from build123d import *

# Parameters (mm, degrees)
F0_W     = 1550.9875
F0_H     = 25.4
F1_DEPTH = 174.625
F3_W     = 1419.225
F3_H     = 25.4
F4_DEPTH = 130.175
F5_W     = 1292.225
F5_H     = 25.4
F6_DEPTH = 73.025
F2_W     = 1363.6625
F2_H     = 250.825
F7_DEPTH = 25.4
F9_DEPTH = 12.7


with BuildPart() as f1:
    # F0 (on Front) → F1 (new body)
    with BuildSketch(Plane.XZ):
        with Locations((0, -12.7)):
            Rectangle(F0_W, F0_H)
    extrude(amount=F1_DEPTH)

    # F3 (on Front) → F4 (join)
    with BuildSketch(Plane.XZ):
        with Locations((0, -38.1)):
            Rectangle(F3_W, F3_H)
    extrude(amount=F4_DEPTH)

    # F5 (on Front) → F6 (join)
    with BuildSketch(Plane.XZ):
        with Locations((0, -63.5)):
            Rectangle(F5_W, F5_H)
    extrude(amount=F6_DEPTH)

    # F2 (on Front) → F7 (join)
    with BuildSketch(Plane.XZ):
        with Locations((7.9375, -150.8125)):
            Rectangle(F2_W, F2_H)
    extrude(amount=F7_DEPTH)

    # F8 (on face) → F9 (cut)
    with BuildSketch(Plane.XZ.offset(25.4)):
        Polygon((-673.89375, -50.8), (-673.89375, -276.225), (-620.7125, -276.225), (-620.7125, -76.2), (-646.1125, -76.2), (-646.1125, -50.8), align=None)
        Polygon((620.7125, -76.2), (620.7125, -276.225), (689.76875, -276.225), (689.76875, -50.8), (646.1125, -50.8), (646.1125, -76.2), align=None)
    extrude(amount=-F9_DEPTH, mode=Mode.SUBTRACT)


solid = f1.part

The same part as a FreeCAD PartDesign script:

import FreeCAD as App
import Part
import Sketcher
from FreeCAD import Vector
Q = App.Units.Quantity

doc = App.newDocument("Part")
params = doc.addObject("Spreadsheet::Sheet", "Params")
for row, (alias, value) in enumerate([
    ("sketch1_height", "1 in"),
    ("sketch1_width", "61.0625 in"),
    ("pad1_length", "6.875 in"),
    ("sketch2_height", "1 in"),
    ("sketch2_width", "55.875 in"),
    ("pad2_length", "5.125 in"),
    ("sketch3_height", "1 in"),
    ("sketch3_width", "50.875 in"),
    ("pad3_length", "2.875 in"),
    ("sketch4_width", "53.6875 in"),
    ("sketch4_height", "9.875 in"),
    ("pad4_length", "1 in"),
    ("sketch5_width", "1 in"),
    ("sketch5_width2", "2.09375 in"),
    ("sketch5_width3", "2.71875 in"),
    ("sketch5_height", "8.875 in"),
    ("pocket1_length", "0.5 in"),
], start=1):
    params.set(f"A{row}", alias)
    params.set(f"B{row}", "=" + value)
    params.setAlias(f"B{row}", alias)

body = doc.addObject("PartDesign::Body", "Body")

sketch1 = doc.addObject("Sketcher::SketchObject", "Sketch")
body.addObject(sketch1)
sketch1.AttachmentSupport = (doc.XZ_Plane, [""])
sketch1.MapMode = "FlatFace"
sketch1.addGeometry(Part.LineSegment(Vector(-775.49375, 0, 0), Vector(-775.49375, -25.4, 0)), False)
sketch1.addGeometry(Part.LineSegment(Vector(-775.49375, -25.4, 0), Vector(775.49375, -25.4, 0)), False)
sketch1.addGeometry(Part.LineSegment(Vector(775.49375, -25.4, 0), Vector(775.49375, 0, 0)), False)
sketch1.addGeometry(Part.LineSegment(Vector(775.49375, 0, 0), Vector(-775.49375, 0, 0)), False)
sketch1.addConstraint(Sketcher.Constraint("Coincident", 0, 2, 1, 1))
sketch1.addConstraint(Sketcher.Constraint("Coincident", 1, 2, 2, 1))
sketch1.addConstraint(Sketcher.Constraint("Coincident", 2, 2, 3, 1))
sketch1.addConstraint(Sketcher.Constraint("Coincident", 3, 2, 0, 1))
sketch1.addConstraint(Sketcher.Constraint("Vertical", 0))
sketch1.addConstraint(Sketcher.Constraint("Horizontal", 1))
sketch1.addConstraint(Sketcher.Constraint("Vertical", 2))
sketch1.addConstraint(Sketcher.Constraint("Horizontal", 3))
sketch1.addConstraint(Sketcher.Constraint("Symmetric", 2, 2, 3, 2, -1, 1))
sketch1.addConstraint(Sketcher.Constraint("DistanceY", 0, 2, 0, 1, Q("1 in")))
sketch1.addConstraint(Sketcher.Constraint("DistanceX", 1, 1, 1, 2, Q("61.0625 in")))
sketch1.setExpression("Constraints[9]", "Params.sketch1_height")
sketch1.setExpression("Constraints[10]", "Params.sketch1_width")
pad1 = doc.addObject("PartDesign::Pad", "Pad")
body.addObject(pad1)
pad1.Profile = sketch1
pad1.setExpression("Length", "Params.pad1_length")

sketch2 = doc.addObject("Sketcher::SketchObject", "Sketch001")
body.addObject(sketch2)
sketch2.AttachmentSupport = (doc.XZ_Plane, [""])
sketch2.MapMode = "FlatFace"
sketch2.addGeometry(Part.LineSegment(Vector(-709.6125, -25.4, 0), Vector(-709.6125, -50.8, 0)), False)
sketch2.addGeometry(Part.LineSegment(Vector(-709.6125, -50.8, 0), Vector(709.6125, -50.8, 0)), False)
sketch2.addGeometry(Part.LineSegment(Vector(709.6125, -50.8, 0), Vector(709.6125, -25.4, 0)), False)
sketch2.addGeometry(Part.LineSegment(Vector(709.6125, -25.4, 0), Vector(-709.6125, -25.4, 0)), False)
sketch2.addConstraint(Sketcher.Constraint("Coincident", 0, 2, 1, 1))
sketch2.addConstraint(Sketcher.Constraint("Coincident", 1, 2, 2, 1))
sketch2.addConstraint(Sketcher.Constraint("Coincident", 2, 2, 3, 1))
sketch2.addConstraint(Sketcher.Constraint("Coincident", 3, 2, 0, 1))
sketch2.addConstraint(Sketcher.Constraint("Vertical", 0))
sketch2.addConstraint(Sketcher.Constraint("Horizontal", 1))
sketch2.addConstraint(Sketcher.Constraint("Vertical", 2))
sketch2.addConstraint(Sketcher.Constraint("Horizontal", 3))
sketch2.addConstraint(Sketcher.Constraint("DistanceY", 0, 2, 0, 1, Q("1 in")))
sketch2.addConstraint(Sketcher.Constraint("DistanceY", 0, 2, -1, 1, Q("2 in")))
sketch2.addConstraint(Sketcher.Constraint("DistanceX", 1, 1, 1, 2, Q("55.875 in")))
sketch2.addConstraint(Sketcher.Constraint("DistanceX", 0, 2, -1, 1, Q("27.9375 in")))
sketch2.setExpression("Constraints[8]", "Params.sketch2_height")
sketch2.setExpression("Constraints[10]", "Params.sketch2_width")
pad2 = doc.addObject("PartDesign::Pad", "Pad001")
body.addObject(pad2)
pad2.Profile = sketch2
pad2.setExpression("Length", "Params.pad2_length")

sketch3 = doc.addObject("Sketcher::SketchObject", "Sketch002")
body.addObject(sketch3)
sketch3.AttachmentSupport = (doc.XZ_Plane, [""])
sketch3.MapMode = "FlatFace"
sketch3.addGeometry(Part.LineSegment(Vector(-646.1125, -50.8, 0), Vector(-646.1125, -76.2, 0)), False)
sketch3.addGeometry(Part.LineSegment(Vector(-646.1125, -76.2, 0), Vector(646.1125, -76.2, 0)), False)
sketch3.addGeometry(Part.LineSegment(Vector(646.1125, -76.2, 0), Vector(646.1125, -50.8, 0)), False)
sketch3.addGeometry(Part.LineSegment(Vector(646.1125, -50.8, 0), Vector(-646.1125, -50.8, 0)), False)
sketch3.addConstraint(Sketcher.Constraint("Coincident", 0, 2, 1, 1))
sketch3.addConstraint(Sketcher.Constraint("Coincident", 1, 2, 2, 1))
sketch3.addConstraint(Sketcher.Constraint("Coincident", 2, 2, 3, 1))
sketch3.addConstraint(Sketcher.Constraint("Coincident", 3, 2, 0, 1))
sketch3.addConstraint(Sketcher.Constraint("Vertical", 0))
sketch3.addConstraint(Sketcher.Constraint("Horizontal", 1))
sketch3.addConstraint(Sketcher.Constraint("Vertical", 2))
sketch3.addConstraint(Sketcher.Constraint("Horizontal", 3))
sketch3.addConstraint(Sketcher.Constraint("DistanceY", 0, 2, 0, 1, Q("1 in")))
sketch3.addConstraint(Sketcher.Constraint("DistanceY", 0, 2, -1, 1, Q("3 in")))
sketch3.addConstraint(Sketcher.Constraint("DistanceX", 1, 1, 1, 2, Q("50.875 in")))
sketch3.addConstraint(Sketcher.Constraint("DistanceX", 0, 2, -1, 1, Q("25.4375 in")))
sketch3.setExpression("Constraints[8]", "Params.sketch3_height")
sketch3.setExpression("Constraints[10]", "Params.sketch3_width")
pad3 = doc.addObject("PartDesign::Pad", "Pad002")
body.addObject(pad3)
pad3.Profile = sketch3
pad3.setExpression("Length", "Params.pad3_length")

sketch4 = doc.addObject("Sketcher::SketchObject", "Sketch003")
body.addObject(sketch4)
sketch4.AttachmentSupport = (doc.XZ_Plane, [""])
sketch4.MapMode = "FlatFace"
sketch4.addGeometry(Part.LineSegment(Vector(-673.89375, -25.4, 0), Vector(-673.89375, -276.225, 0)), False)
sketch4.addGeometry(Part.LineSegment(Vector(-673.89375, -276.225, 0), Vector(689.76875, -276.225, 0)), False)
sketch4.addGeometry(Part.LineSegment(Vector(689.76875, -276.225, 0), Vector(689.76875, -25.4, 0)), False)
sketch4.addGeometry(Part.LineSegment(Vector(689.76875, -25.4, 0), Vector(-673.89375, -25.4, 0)), False)
sketch4.addConstraint(Sketcher.Constraint("Coincident", 0, 2, 1, 1))
sketch4.addConstraint(Sketcher.Constraint("Coincident", 1, 2, 2, 1))
sketch4.addConstraint(Sketcher.Constraint("Coincident", 2, 2, 3, 1))
sketch4.addConstraint(Sketcher.Constraint("Coincident", 3, 2, 0, 1))
sketch4.addConstraint(Sketcher.Constraint("Vertical", 0))
sketch4.addConstraint(Sketcher.Constraint("Horizontal", 1))
sketch4.addConstraint(Sketcher.Constraint("Vertical", 2))
sketch4.addConstraint(Sketcher.Constraint("Horizontal", 3))
sketch4.addConstraint(Sketcher.Constraint("DistanceY", 2, 2, -1, 1, Q("1 in")))
sketch4.addConstraint(Sketcher.Constraint("DistanceX", 1, 1, 1, 2, Q("53.6875 in")))
sketch4.addConstraint(Sketcher.Constraint("DistanceY", 0, 2, 0, 1, Q("9.875 in")))
sketch4.addConstraint(Sketcher.Constraint("DistanceX", 0, 2, -1, 1, Q("26.53125 in")))
sketch4.setExpression("Constraints[9]", "Params.sketch4_width")
sketch4.setExpression("Constraints[10]", "Params.sketch4_height")
pad4 = doc.addObject("PartDesign::Pad", "Pad003")
body.addObject(pad4)
pad4.Profile = sketch4
pad4.setExpression("Length", "Params.pad4_length")

sketch5 = doc.addObject("Sketcher::SketchObject", "Sketch004")
body.addObject(sketch5)
sketch5.AttachmentSupport = (doc.XZ_Plane, [""])
sketch5.MapMode = "FlatFace"
sketch5.AttachmentOffset = App.Placement(Vector(0, 0, 1 * 25.4), App.Rotation())
sketch5.addGeometry(Part.LineSegment(Vector(-673.89375, -50.8, 0), Vector(-673.89375, -276.225, 0)), False)
sketch5.addGeometry(Part.LineSegment(Vector(-673.89375, -276.225, 0), Vector(-620.7125, -276.225, 0)), False)
sketch5.addGeometry(Part.LineSegment(Vector(-620.7125, -276.225, 0), Vector(-620.7125, -76.2, 0)), False)
sketch5.addGeometry(Part.LineSegment(Vector(-620.7125, -76.2, 0), Vector(-646.1125, -76.2, 0)), False)
sketch5.addGeometry(Part.LineSegment(Vector(-646.1125, -76.2, 0), Vector(-646.1125, -50.8, 0)), False)
sketch5.addGeometry(Part.LineSegment(Vector(-646.1125, -50.8, 0), Vector(-673.89375, -50.8, 0)), False)
sketch5.addGeometry(Part.LineSegment(Vector(620.7125, -76.2, 0), Vector(620.7125, -276.225, 0)), False)
sketch5.addGeometry(Part.LineSegment(Vector(620.7125, -276.225, 0), Vector(689.76875, -276.225, 0)), False)
sketch5.addGeometry(Part.LineSegment(Vector(689.76875, -276.225, 0), Vector(689.76875, -50.8, 0)), False)
sketch5.addGeometry(Part.LineSegment(Vector(689.76875, -50.8, 0), Vector(646.1125, -50.8, 0)), False)
sketch5.addGeometry(Part.LineSegment(Vector(646.1125, -50.8, 0), Vector(646.1125, -76.2, 0)), False)
sketch5.addGeometry(Part.LineSegment(Vector(646.1125, -76.2, 0), Vector(620.7125, -76.2, 0)), False)
sketch5.addConstraint(Sketcher.Constraint("Coincident", 0, 2, 1, 1))
sketch5.addConstraint(Sketcher.Constraint("Coincident", 1, 2, 2, 1))
sketch5.addConstraint(Sketcher.Constraint("Coincident", 2, 2, 3, 1))
sketch5.addConstraint(Sketcher.Constraint("Coincident", 3, 2, 4, 1))
sketch5.addConstraint(Sketcher.Constraint("Coincident", 4, 2, 5, 1))
sketch5.addConstraint(Sketcher.Constraint("Coincident", 5, 2, 0, 1))
sketch5.addConstraint(Sketcher.Constraint("Coincident", 6, 2, 7, 1))
sketch5.addConstraint(Sketcher.Constraint("Coincident", 7, 2, 8, 1))
sketch5.addConstraint(Sketcher.Constraint("Coincident", 8, 2, 9, 1))
sketch5.addConstraint(Sketcher.Constraint("Coincident", 9, 2, 10, 1))
sketch5.addConstraint(Sketcher.Constraint("Coincident", 10, 2, 11, 1))
sketch5.addConstraint(Sketcher.Constraint("Coincident", 11, 2, 6, 1))
sketch5.addConstraint(Sketcher.Constraint("Vertical", 0))
sketch5.addConstraint(Sketcher.Constraint("Horizontal", 1))
sketch5.addConstraint(Sketcher.Constraint("Vertical", 2))
sketch5.addConstraint(Sketcher.Constraint("Horizontal", 3))
sketch5.addConstraint(Sketcher.Constraint("Vertical", 4))
sketch5.addConstraint(Sketcher.Constraint("Horizontal", 5))
sketch5.addConstraint(Sketcher.Constraint("Vertical", 6))
sketch5.addConstraint(Sketcher.Constraint("Horizontal", 7))
sketch5.addConstraint(Sketcher.Constraint("Vertical", 8))
sketch5.addConstraint(Sketcher.Constraint("Horizontal", 9))
sketch5.addConstraint(Sketcher.Constraint("Vertical", 10))
sketch5.addConstraint(Sketcher.Constraint("Horizontal", 11))
sketch5.addConstraint(Sketcher.Constraint("Symmetric", 1, 2, 6, 2, -2))
sketch5.addConstraint(Sketcher.Constraint("Symmetric", 4, 2, 9, 2, -2))
sketch5.addConstraint(Sketcher.Constraint("Horizontal", 3, 2, 10, 2))
sketch5.addConstraint(Sketcher.Constraint("Equal", 11, 4))
sketch5.addConstraint(Sketcher.Constraint("DistanceX", 3, 2, 3, 1, Q("1 in")))
sketch5.addConstraint(Sketcher.Constraint("DistanceY", 2, 2, -1, 1, Q("3 in")))
sketch5.addConstraint(Sketcher.Constraint("DistanceX", 1, 1, 1, 2, Q("2.09375 in")))
sketch5.addConstraint(Sketcher.Constraint("DistanceX", 7, 1, 7, 2, Q("2.71875 in")))
sketch5.addConstraint(Sketcher.Constraint("DistanceY", 0, 2, 0, 1, Q("8.875 in")))
sketch5.addConstraint(Sketcher.Constraint("DistanceX", 0, 2, -1, 1, Q("26.53125 in")))
sketch5.setExpression("Constraints[28]", "Params.sketch5_width")
sketch5.setExpression("Constraints[30]", "Params.sketch5_width2")
sketch5.setExpression("Constraints[31]", "Params.sketch5_width3")
sketch5.setExpression("Constraints[32]", "Params.sketch5_height")
pocket1 = doc.addObject("PartDesign::Pocket", "Pocket")
body.addObject(pocket1)
pocket1.Profile = sketch5
pocket1.setExpression("Length", "Params.pocket1_length")

doc.recompute()
